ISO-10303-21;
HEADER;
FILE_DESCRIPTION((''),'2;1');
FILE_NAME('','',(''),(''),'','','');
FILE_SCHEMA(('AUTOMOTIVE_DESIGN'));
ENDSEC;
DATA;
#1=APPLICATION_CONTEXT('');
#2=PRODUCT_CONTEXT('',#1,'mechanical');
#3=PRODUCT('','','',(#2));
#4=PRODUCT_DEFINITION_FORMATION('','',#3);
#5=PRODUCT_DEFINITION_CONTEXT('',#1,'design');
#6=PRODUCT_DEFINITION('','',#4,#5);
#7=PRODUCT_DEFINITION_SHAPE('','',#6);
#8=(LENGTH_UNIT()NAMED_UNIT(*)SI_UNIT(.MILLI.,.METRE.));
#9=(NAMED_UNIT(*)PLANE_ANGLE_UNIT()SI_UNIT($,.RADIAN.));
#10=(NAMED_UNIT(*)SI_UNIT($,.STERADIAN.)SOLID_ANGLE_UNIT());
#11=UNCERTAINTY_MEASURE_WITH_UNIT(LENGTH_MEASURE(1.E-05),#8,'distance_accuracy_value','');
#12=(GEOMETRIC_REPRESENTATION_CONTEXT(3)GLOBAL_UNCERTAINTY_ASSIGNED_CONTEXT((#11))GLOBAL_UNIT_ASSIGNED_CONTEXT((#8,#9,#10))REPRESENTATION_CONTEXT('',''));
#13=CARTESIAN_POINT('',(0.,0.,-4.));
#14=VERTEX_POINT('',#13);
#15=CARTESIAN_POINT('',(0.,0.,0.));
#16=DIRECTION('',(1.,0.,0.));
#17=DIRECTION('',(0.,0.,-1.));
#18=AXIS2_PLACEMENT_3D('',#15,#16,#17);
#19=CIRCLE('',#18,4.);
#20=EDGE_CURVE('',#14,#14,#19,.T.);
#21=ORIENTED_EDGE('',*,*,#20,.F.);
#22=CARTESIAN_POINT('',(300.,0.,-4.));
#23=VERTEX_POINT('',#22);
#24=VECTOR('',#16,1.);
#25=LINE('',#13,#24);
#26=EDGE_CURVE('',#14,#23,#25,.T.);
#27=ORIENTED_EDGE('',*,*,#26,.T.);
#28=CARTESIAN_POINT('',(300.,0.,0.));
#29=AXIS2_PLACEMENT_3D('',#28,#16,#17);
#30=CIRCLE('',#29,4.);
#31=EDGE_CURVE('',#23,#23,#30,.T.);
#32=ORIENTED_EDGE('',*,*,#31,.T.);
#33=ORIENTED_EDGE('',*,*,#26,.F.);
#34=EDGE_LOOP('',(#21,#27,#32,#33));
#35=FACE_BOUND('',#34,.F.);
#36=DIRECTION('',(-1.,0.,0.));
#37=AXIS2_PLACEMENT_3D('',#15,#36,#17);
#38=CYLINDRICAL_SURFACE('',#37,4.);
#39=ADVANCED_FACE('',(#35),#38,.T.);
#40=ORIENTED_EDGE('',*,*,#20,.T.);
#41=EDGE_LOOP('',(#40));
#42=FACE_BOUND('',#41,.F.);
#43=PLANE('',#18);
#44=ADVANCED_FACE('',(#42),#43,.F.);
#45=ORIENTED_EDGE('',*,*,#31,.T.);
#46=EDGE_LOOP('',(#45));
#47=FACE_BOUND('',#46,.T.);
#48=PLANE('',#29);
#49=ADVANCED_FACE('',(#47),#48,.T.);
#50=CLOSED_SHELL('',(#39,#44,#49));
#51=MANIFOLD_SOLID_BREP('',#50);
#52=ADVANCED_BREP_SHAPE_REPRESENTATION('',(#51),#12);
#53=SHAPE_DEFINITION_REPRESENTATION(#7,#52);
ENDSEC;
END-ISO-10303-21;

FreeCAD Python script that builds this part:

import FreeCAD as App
import Part
import Sketcher
from FreeCAD import Vector

doc = App.newDocument("Part")
body = doc.addObject("PartDesign::Body", "Body")

# Sketch on YZ plane
sketch1 = doc.addObject("Sketcher::SketchObject", "Sketch")
body.addObject(sketch1)
sketch1.AttachmentSupport = (doc.YZ_Plane, [""])
sketch1.MapMode = "FlatFace"
sketch1.addGeometry(Part.Circle(Vector(0, 0, 0), Vector(0, 0, 1), 4), False)
sketch1.addConstraint([
    Sketcher.Constraint("Coincident", 0, 3, -1, 1),
    Sketcher.Constraint("Diameter", 0, 8.0),
])
pad1 = doc.addObject("PartDesign::Pad", "Pad")
body.addObject(pad1)
pad1.Profile = sketch1
pad1.Length = 300

doc.recompute()
